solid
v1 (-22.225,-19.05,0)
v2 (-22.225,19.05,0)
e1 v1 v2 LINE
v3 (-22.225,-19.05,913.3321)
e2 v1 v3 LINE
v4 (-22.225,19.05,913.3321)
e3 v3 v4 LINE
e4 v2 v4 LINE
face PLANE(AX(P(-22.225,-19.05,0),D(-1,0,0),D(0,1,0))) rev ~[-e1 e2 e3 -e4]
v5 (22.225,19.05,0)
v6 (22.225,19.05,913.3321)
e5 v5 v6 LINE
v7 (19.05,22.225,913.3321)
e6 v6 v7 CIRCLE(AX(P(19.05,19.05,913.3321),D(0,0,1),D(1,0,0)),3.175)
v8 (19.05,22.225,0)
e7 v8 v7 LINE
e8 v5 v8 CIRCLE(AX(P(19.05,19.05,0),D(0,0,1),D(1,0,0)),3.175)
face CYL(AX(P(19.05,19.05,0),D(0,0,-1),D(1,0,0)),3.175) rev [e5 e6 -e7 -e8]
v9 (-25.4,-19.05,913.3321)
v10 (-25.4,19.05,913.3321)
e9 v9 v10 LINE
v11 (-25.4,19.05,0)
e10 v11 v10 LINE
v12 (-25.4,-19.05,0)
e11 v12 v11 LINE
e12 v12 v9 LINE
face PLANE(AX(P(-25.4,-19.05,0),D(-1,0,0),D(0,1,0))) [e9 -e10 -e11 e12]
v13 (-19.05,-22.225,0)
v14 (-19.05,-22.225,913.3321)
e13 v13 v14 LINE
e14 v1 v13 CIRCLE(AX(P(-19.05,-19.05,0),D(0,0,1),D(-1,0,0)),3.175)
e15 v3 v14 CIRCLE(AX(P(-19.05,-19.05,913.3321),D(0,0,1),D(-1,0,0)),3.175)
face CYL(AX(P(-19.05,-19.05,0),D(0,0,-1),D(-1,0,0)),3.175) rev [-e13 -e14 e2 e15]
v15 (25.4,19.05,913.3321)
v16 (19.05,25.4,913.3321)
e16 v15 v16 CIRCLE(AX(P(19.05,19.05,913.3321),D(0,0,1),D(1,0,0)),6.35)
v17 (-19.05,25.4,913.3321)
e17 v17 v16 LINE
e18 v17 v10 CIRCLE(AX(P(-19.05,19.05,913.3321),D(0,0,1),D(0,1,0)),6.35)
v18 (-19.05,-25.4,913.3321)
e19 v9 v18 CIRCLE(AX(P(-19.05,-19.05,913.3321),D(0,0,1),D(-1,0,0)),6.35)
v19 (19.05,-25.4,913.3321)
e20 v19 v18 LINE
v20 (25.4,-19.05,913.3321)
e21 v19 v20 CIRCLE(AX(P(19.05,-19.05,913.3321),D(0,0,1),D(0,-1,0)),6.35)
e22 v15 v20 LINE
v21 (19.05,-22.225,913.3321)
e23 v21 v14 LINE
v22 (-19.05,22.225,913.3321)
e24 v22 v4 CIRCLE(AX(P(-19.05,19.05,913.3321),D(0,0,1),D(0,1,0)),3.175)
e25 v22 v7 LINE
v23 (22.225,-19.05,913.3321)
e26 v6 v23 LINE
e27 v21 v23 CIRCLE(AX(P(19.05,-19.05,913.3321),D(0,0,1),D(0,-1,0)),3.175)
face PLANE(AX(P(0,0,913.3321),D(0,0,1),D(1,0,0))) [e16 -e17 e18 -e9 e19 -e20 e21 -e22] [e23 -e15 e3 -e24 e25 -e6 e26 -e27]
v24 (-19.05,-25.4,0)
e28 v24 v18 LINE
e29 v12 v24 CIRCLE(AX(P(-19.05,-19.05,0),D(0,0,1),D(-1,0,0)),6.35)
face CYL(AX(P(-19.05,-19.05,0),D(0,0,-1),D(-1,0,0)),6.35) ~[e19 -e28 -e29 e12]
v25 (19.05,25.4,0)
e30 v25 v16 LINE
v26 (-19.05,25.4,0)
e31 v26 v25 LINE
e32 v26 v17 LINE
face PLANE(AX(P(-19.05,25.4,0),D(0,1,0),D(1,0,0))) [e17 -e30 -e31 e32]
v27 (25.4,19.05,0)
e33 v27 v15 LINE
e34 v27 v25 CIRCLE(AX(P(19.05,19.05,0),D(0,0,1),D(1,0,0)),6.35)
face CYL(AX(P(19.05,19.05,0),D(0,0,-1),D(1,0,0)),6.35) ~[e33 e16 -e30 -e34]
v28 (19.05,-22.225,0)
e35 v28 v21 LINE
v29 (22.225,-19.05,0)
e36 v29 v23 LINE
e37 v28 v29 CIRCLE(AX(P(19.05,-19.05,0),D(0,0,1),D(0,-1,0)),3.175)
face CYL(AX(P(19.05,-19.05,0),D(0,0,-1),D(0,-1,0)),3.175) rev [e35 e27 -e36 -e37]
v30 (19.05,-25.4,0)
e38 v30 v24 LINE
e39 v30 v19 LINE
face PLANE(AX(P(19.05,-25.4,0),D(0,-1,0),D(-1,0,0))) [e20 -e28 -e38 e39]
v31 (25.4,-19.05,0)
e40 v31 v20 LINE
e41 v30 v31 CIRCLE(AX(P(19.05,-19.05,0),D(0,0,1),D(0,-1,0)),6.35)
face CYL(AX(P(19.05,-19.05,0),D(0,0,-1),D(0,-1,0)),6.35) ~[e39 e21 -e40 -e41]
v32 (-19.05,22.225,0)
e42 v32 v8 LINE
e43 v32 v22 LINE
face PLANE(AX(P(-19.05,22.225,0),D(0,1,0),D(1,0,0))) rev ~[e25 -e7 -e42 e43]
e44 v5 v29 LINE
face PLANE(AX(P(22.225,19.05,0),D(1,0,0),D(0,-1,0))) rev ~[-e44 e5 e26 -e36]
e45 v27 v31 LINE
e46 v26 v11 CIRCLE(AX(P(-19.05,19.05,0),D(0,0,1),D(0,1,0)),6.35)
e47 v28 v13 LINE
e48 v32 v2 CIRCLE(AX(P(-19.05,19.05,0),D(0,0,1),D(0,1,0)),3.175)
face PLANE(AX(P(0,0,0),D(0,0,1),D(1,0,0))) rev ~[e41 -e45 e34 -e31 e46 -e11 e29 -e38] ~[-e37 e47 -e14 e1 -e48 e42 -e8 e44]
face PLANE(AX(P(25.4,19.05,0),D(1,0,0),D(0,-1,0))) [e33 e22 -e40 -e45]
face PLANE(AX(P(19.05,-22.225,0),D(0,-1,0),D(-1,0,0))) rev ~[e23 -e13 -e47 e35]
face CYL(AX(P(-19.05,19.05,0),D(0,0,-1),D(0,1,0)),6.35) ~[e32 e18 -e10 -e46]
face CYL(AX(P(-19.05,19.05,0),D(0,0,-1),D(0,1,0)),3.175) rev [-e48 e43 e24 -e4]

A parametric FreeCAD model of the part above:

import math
import FreeCAD as App
import Part
import Sketcher
from FreeCAD import Vector
Q = App.Units.Quantity

doc = App.newDocument("Part")
params = doc.addObject("Spreadsheet::Sheet", "Params")
for row, (alias, value) in enumerate([
    ("sketch1_radius", "0.25 in"),
    ("sketch1_radius2", "0.125 in"),
    ("pad1_length", "913.3321 mm"),
], start=1):
    params.set(f"A{row}", alias)
    params.set(f"B{row}", "=" + value)
    params.setAlias(f"B{row}", alias)

body = doc.addObject("PartDesign::Body", "Body")

# Sketch on XY plane
sketch1 = body.newObject("Sketcher::SketchObject", "Sketch")
sketch1.AttachmentSupport = (doc.getObject("XY_Plane"), [""])
sketch1.MapMode = "FlatFace"
sketch1.addGeometry([
    Part.LineSegment(Vector(-25.4, 19.1, 0), Vector(-25.4, -19.1, 0)),  # 0
    Part.ArcOfCircle(Part.Circle(Vector(-19.1, -19.1, 0), Vector(0, 0, 1), 6.3), math.radians(180), math.radians(270)),  # 1
    Part.LineSegment(Vector(-19.1, -25.4, 0), Vector(19.1, -25.4, 0)),  # 2
    Part.ArcOfCircle(Part.Circle(Vector(19.1, -19.1, 0), Vector(0, 0, 1), 6.3), math.radians(-90), math.radians(0)),  # 3
    Part.LineSegment(Vector(25.4, -19.1, 0), Vector(25.4, 19.1, 0)),  # 4
    Part.ArcOfCircle(Part.Circle(Vector(19.1, 19.1, 0), Vector(0, 0, 1), 6.3), math.radians(0), math.radians(90)),  # 5
    Part.LineSegment(Vector(19.1, 25.4, 0), Vector(-19.1, 25.4, 0)),  # 6
    Part.ArcOfCircle(Part.Circle(Vector(-19.1, 19.1, 0), Vector(0, 0, 1), 6.3), math.radians(90), math.radians(180)),  # 7
    Part.ArcOfCircle(Part.Circle(Vector(-19.1, 19.1, 0), Vector(0, 0, 1), 3.2), math.radians(90), math.radians(180)),  # 8
    Part.LineSegment(Vector(-19.1, 22.2, 0), Vector(19.1, 22.2, 0)),  # 9
    Part.ArcOfCircle(Part.Circle(Vector(19.1, 19.1, 0), Vector(0, 0, 1), 3.2), math.radians(0), math.radians(90)),  # 10
    Part.LineSegment(Vector(22.2, 19.1, 0), Vector(22.2, -19.1, 0)),  # 11
    Part.ArcOfCircle(Part.Circle(Vector(19.1, -19.1, 0), Vector(0, 0, 1), 3.2), math.radians(-90), math.radians(0)),  # 12
    Part.LineSegment(Vector(19.1, -22.2, 0), Vector(-19.1, -22.2, 0)),  # 13
    Part.ArcOfCircle(Part.Circle(Vector(-19.1, -19.1, 0), Vector(0, 0, 1), 3.2), math.radians(180), math.radians(270)),  # 14
    Part.LineSegment(Vector(-22.2, -19.1, 0), Vector(-22.2, 19.1, 0)),  # 15
], False)
sketch1.addConstraint([
    Sketcher.Constraint("Tangent", 0, 2, 1, 1),
    Sketcher.Constraint("Tangent", 1, 2, 2, 1),
    Sketcher.Constraint("Tangent", 2, 2, 3, 1),
    Sketcher.Constraint("Tangent", 3, 2, 4, 1),
    Sketcher.Constraint("Tangent", 4, 2, 5, 1),
    Sketcher.Constraint("Tangent", 5, 2, 6, 1),
    Sketcher.Constraint("Tangent", 6, 2, 7, 1),
    Sketcher.Constraint("Tangent", 7, 2, 0, 1),
    Sketcher.Constraint("Tangent", 8, 1, 9, 1),
    Sketcher.Constraint("Tangent", 9, 2, 10, 2),
    Sketcher.Constraint("Tangent", 10, 1, 11, 1),
    Sketcher.Constraint("Tangent", 11, 2, 12, 2),
    Sketcher.Constraint("Tangent", 12, 1, 13, 1),
    Sketcher.Constraint("Tangent", 13, 2, 14, 2),
    Sketcher.Constraint("Tangent", 14, 1, 15, 1),
    Sketcher.Constraint("Tangent", 15, 2, 8, 2),
    Sketcher.Constraint("Vertical", 0),
    Sketcher.Constraint("Horizontal", 2),
    Sketcher.Constraint("Vertical", 4),
    Sketcher.Constraint("Horizontal", 6),
    Sketcher.Constraint("Horizontal", 9),
    Sketcher.Constraint("Vertical", 11),
    Sketcher.Constraint("Horizontal", 13),
    Sketcher.Constraint("Vertical", 15),
    Sketcher.Constraint("Coincident", 8, 3, 7, 3),
    Sketcher.Constraint("Coincident", 10, 3, 5, 3),
    Sketcher.Constraint("Coincident", 12, 3, 3, 3),
    Sketcher.Constraint("Equal", 1, 3),
    Sketcher.Constraint("Equal", 3, 5),
    Sketcher.Constraint("Equal", 5, 7),
    Sketcher.Constraint("Equal", 12, 14),
    Sketcher.Constraint("Symmetric", 1, 3, 5, 3, -1, 1),
    Sketcher.Constraint("Equal", 13, 0),
    Sketcher.Constraint("Radius", 1, Q("0.25 in")),
    Sketcher.Constraint("DistanceX", 0, 2, -1, 1, Q("1 in")),
    Sketcher.Constraint("Radius", 8, Q("0.125 in")),
])
sketch1.setExpression("Constraints[33]", "Params.sketch1_radius")
sketch1.setExpression("Constraints[35]", "Params.sketch1_radius2")
pad1 = body.newObject("PartDesign::Pad", "Pad")
pad1.Profile = sketch1
pad1.setExpression("Length", "Params.pad1_length")

doc.recompute()
